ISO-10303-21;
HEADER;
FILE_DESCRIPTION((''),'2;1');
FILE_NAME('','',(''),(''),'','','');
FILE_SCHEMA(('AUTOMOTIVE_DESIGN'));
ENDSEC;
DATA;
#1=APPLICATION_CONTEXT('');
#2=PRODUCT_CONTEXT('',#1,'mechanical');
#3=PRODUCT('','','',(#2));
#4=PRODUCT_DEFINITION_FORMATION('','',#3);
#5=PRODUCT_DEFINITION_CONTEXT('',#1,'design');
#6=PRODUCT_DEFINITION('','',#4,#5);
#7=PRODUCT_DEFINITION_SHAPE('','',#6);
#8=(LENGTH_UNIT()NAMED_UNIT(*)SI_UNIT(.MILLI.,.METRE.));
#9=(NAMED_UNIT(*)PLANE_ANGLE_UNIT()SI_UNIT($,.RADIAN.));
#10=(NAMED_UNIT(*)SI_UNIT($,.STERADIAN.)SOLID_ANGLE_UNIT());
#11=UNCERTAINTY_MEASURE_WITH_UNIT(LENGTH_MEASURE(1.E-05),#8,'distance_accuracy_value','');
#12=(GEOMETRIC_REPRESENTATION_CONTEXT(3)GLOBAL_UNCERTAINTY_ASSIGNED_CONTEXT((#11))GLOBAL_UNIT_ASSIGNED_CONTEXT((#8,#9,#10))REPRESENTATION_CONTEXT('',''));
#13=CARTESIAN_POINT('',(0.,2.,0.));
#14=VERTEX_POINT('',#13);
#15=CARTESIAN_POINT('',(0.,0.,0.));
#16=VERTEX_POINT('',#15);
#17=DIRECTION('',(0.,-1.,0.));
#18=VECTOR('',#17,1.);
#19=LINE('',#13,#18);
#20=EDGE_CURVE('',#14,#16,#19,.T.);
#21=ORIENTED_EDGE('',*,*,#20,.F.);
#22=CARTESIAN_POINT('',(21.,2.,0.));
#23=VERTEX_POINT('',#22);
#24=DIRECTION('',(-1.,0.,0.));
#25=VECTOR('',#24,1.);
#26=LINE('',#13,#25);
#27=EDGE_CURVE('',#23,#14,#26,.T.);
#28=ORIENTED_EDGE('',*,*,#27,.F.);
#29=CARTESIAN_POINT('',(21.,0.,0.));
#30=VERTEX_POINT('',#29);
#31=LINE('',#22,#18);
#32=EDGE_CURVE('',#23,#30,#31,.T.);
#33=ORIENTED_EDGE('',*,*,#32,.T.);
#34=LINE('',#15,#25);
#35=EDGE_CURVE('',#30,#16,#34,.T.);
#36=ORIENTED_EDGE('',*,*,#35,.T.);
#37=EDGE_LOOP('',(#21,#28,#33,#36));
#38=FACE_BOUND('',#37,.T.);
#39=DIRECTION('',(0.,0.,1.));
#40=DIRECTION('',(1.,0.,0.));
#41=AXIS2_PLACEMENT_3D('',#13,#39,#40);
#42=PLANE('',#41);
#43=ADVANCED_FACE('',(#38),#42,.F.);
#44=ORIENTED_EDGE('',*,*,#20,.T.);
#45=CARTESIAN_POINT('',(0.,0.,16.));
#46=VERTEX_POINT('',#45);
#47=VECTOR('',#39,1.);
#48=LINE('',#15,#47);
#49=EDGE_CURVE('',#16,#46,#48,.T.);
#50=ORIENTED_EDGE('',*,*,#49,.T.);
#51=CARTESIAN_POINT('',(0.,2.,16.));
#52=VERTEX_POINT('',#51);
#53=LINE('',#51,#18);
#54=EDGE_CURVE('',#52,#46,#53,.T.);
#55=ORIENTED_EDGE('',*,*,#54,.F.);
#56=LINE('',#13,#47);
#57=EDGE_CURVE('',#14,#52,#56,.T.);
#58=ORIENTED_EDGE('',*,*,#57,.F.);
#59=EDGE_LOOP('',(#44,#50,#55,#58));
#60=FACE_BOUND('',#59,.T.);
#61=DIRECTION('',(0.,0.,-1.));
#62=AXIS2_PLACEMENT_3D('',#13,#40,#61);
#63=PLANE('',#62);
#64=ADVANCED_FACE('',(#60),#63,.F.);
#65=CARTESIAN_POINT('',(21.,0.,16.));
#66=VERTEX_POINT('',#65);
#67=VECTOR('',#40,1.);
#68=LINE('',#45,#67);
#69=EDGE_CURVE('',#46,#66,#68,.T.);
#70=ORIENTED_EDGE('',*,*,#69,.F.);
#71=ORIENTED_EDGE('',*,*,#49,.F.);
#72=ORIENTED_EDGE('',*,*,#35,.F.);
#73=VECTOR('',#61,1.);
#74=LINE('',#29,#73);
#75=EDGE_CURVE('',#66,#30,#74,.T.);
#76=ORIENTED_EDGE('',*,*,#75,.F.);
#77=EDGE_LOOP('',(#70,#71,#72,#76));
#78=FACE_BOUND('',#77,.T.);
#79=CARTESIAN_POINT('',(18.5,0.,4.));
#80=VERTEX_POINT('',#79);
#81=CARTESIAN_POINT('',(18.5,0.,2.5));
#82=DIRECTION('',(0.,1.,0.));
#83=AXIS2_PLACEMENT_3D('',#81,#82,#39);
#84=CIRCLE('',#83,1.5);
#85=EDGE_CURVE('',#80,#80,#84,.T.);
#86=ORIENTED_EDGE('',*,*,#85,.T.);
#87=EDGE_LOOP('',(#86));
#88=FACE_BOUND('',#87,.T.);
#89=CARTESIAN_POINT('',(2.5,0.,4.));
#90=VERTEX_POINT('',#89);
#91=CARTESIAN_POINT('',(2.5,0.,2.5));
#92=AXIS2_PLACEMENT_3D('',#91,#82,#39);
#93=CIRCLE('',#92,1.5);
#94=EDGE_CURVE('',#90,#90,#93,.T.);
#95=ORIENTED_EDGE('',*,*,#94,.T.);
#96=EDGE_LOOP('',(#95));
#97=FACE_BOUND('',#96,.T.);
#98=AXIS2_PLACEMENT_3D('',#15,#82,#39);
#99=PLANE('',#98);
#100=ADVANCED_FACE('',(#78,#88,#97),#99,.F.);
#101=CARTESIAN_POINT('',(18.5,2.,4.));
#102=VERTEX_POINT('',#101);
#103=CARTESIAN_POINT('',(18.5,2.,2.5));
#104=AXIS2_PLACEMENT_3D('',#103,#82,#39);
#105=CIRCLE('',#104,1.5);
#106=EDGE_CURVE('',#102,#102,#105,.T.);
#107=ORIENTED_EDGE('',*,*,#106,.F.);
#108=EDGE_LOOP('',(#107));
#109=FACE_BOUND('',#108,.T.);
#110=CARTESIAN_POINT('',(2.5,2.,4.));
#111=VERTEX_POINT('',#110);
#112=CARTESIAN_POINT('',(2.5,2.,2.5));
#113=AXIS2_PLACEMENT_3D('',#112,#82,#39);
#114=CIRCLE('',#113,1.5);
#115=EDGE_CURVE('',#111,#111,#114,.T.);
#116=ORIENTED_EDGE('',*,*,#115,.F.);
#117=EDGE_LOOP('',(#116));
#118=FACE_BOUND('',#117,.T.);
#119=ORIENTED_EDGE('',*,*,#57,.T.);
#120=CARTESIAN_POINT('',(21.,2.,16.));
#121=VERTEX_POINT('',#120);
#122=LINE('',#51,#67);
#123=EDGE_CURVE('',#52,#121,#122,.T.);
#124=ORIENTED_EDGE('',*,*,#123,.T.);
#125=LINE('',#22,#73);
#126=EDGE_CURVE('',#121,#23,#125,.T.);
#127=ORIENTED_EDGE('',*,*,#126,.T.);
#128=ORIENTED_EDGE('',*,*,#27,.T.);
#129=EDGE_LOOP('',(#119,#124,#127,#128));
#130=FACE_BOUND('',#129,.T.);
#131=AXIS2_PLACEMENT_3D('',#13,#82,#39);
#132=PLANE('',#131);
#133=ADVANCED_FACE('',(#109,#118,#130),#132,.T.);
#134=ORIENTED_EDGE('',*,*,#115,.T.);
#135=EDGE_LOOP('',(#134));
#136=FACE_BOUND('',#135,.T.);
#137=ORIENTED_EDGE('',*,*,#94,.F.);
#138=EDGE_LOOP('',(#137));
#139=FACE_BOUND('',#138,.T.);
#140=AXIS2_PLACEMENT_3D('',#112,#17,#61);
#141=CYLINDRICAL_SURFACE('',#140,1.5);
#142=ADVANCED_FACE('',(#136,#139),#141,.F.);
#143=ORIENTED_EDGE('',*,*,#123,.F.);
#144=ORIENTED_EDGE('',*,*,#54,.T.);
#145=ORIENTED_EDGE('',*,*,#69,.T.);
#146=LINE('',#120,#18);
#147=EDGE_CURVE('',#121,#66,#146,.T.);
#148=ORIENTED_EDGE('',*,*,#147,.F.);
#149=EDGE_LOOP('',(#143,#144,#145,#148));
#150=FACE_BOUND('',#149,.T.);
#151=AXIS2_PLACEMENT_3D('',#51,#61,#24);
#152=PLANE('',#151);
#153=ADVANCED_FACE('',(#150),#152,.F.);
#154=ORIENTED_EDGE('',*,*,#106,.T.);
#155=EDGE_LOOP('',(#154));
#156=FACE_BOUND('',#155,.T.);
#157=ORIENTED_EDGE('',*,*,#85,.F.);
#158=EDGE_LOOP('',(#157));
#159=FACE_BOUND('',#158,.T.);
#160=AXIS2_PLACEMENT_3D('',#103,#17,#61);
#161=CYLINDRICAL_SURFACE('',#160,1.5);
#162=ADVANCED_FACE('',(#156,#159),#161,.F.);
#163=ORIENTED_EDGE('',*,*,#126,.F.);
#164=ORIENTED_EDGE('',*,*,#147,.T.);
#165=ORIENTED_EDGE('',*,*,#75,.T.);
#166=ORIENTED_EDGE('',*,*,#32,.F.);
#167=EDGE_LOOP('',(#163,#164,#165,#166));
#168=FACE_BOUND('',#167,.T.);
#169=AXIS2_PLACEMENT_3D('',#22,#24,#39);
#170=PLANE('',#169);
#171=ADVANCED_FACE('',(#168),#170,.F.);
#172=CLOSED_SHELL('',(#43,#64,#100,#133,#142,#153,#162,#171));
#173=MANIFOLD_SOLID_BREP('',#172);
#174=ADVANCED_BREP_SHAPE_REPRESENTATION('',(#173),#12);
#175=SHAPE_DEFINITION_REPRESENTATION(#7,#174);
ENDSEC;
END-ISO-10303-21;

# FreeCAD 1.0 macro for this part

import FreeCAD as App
import Part
import Sketcher

V = App.Vector
Q = App.Units.Quantity


def add_polygon(sketch, points):
    """Adds a closed chain of lines whose ends are joined by coincident constraints."""
    first, n = sketch.GeometryCount, len(points)
    for a, b in zip(points, points[1:] + points[:1]):
        sketch.addGeometry(Part.LineSegment(App.Vector(*a, 0), App.Vector(*b, 0)), False)
    for i in range(n):
        sketch.addConstraint(Sketcher.Constraint("Coincident", first + i, 2, first + (i + 1) % n, 1))

doc = App.newDocument("Part")
params = doc.addObject("Spreadsheet::Sheet", "Params")
for row, (alias, value) in enumerate([
    ("sketch1_diameter", "3 mm"),
    ("sketch1_width", "21 mm"),
    ("sketch1_height", "16 mm"),
    ("pad1_length", "2 mm"),
], start=1):
    params.set(f"A{row}", alias)
    params.set(f"B{row}", "=" + value)
    params.setAlias(f"B{row}", alias)

body = doc.addObject("PartDesign::Body", "Body")

sketch1 = doc.addObject("Sketcher::SketchObject", "Sketch")
body.addObject(sketch1)
sketch1.AttachmentSupport = (doc.XZ_Plane, [""])
sketch1.MapMode = "FlatFace"
add_polygon(sketch1, [(0, 0), (0, 16), (21, 16), (21, 0)])
sketch1.addGeometry(Part.Circle(V(2.5, 2.5, 0), V(0, 0, 1), 1.5), False)
sketch1.addGeometry(Part.Circle(V(18.5, 2.5, 0), V(0, 0, 1), 1.5), False)
sketch1.addConstraint([
    Sketcher.Constraint("Vertical", 0),
    Sketcher.Constraint("Horizontal", 1),
    Sketcher.Constraint("Vertical", 2),
    Sketcher.Constraint("Horizontal", 3),
    Sketcher.Constraint("Coincident", 3, 2, -1, 1),
    Sketcher.Constraint("Equal", 4, 5),
    Sketcher.Constraint("Horizontal", 4, 3, 5, 3),
    Sketcher.Constraint("Diameter", 4, Q("3 mm")),
    Sketcher.Constraint("DistanceX", 1, 1, 1, 2, Q("21 mm")),
    Sketcher.Constraint("DistanceY", 0, 1, 0, 2, Q("16 mm")),
    Sketcher.Constraint("DistanceX", 4, 3, 5, 3, Q("16 mm")),
    Sketcher.Constraint("DistanceX", -1, 1, 4, 3, Q("2.5 mm")),
    Sketcher.Constraint("DistanceY", -1, 1, 4, 3, Q("2.5 mm")),
])
sketch1.setExpression("Constraints[11]", "Params.sketch1_diameter")
sketch1.setExpression("Constraints[12]", "Params.sketch1_width")
sketch1.setExpression("Constraints[13]", "Params.sketch1_height")
pad1 = doc.addObject("PartDesign::Pad", "Pad")
body.addObject(pad1)
pad1.Profile = sketch1
pad1.setExpression("Length", "Params.pad1_length")
pad1.Reversed = True

doc.recompute()
